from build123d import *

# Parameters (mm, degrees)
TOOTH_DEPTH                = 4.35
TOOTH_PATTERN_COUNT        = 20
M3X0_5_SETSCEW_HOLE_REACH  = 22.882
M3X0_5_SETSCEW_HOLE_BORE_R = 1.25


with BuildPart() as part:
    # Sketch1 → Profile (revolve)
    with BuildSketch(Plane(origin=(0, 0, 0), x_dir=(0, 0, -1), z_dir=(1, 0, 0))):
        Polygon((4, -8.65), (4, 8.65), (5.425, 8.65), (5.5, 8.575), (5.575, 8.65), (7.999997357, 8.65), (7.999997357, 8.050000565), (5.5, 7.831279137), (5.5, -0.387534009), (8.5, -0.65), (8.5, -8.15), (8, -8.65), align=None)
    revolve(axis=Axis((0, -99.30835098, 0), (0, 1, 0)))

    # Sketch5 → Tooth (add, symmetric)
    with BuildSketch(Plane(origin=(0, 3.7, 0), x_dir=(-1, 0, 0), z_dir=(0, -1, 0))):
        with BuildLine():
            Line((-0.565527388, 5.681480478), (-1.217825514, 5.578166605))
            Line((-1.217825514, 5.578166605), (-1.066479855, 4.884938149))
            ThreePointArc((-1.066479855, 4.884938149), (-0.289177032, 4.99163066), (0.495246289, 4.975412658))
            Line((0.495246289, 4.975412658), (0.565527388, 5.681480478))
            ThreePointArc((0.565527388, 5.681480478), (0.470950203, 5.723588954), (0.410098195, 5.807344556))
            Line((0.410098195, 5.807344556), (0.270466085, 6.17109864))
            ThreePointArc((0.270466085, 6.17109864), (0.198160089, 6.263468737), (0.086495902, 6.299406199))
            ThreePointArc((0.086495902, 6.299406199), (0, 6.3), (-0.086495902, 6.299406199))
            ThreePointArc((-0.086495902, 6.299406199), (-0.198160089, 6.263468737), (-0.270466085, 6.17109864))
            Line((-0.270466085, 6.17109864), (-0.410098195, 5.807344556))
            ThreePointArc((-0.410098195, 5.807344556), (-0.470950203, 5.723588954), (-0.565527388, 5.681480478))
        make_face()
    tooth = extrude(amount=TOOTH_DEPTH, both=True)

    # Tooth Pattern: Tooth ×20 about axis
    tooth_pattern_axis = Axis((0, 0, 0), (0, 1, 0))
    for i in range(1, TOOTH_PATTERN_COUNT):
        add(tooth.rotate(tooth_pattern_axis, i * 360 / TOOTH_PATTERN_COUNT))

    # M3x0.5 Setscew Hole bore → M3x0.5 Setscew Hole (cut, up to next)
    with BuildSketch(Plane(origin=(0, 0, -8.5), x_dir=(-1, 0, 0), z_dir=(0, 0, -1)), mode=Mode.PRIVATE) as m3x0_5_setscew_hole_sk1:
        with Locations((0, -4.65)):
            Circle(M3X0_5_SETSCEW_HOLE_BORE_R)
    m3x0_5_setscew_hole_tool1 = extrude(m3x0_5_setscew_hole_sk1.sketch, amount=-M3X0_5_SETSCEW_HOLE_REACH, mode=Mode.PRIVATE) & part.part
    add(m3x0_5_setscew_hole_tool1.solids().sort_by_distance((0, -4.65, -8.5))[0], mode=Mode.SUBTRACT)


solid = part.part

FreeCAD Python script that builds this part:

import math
import FreeCAD as App
import Part
import Sketcher
Q = App.Units.Quantity


def add_polygon(sketch, points):
    """Adds a closed chain of lines whose ends are joined by coincident constraints."""
    first, n = sketch.GeometryCount, len(points)
    for a, b in zip(points, points[1:] + points[:1]):
        sketch.addGeometry(Part.LineSegment(App.Vector(*a, 0), App.Vector(*b, 0)), False)
    for i in range(n):
        sketch.addConstraint(Sketcher.Constraint("Coincident", first + i, 2, first + (i + 1) % n, 1))

doc = App.newDocument("Part")
body = doc.addObject("PartDesign::Body", "Body")

# Sketch on YZ plane
sketch1 = body.newObject("Sketcher::SketchObject", "Sketch")
sketch1.AttachmentSupport = (doc.getObject("YZ_Plane"), [""])
sketch1.MapMode = "FlatFace"
add_polygon(sketch1, [(8.65, -4), (-8.65, -4), (-8.65, -8), (-8.15, -8.5), (-0.65, -8.5), (-0.39, -5.5), (7.83, -5.5), (8.05, -8), (8.65, -8), (8.65, -5.58), (8.57, -5.5), (8.65, -5.42)])  # lines 0-11
sketch1.addConstraint([
    Sketcher.Constraint("Horizontal", 0),
    Sketcher.Constraint("Vertical", 1),
    Sketcher.Constraint("Horizontal", 3),
    Sketcher.Constraint("Horizontal", 5),
    Sketcher.Constraint("Horizontal", 7),
    Sketcher.Constraint("Vertical", 8),
    Sketcher.Constraint("Vertical", 11),
    Sketcher.Constraint("Symmetric", 1, 2, 7, 2, -2),
    Sketcher.Constraint("Parallel", 2, 9),
    Sketcher.Constraint("Perpendicular", 9, 10),
    Sketcher.Constraint("Horizontal", 5, 2, 9, 2),
    Sketcher.Constraint("Vertical", 8, 2, 10, 2),
    Sketcher.Constraint("Equal", 9, 10),
    Sketcher.Constraint("DistanceY", 1, 2, 1, 1, 4.0),
    Sketcher.Constraint("Angle", 4, Q("85 deg")),
    Sketcher.Constraint("Angle", 6, Q("-85 deg")),
    Sketcher.Constraint("DistanceX", 0, 2, 0, 1, 17.3),
    Sketcher.Constraint("DistanceX", 3, 1, 3, 2, 7.5),
    Sketcher.Constraint("DistanceX", 7, 1, 7, 2, 0.599999),
    Sketcher.Constraint("DistanceY", 0, 2, -1, 1, 4.0),
    Sketcher.Constraint("DistanceX", 1, 2, 3, 2, 8.0),
    Sketcher.Constraint("DistanceY", 3, 2, 4, 2, 3.0),
    Sketcher.Constraint("DistanceY", 11, 1, 11, 2, 1.425),
])
revolution = body.newObject("PartDesign::Revolution", "Revolution")
revolution.Profile = sketch1
revolution.ReferenceAxis = (sketch1, ["H_Axis"])
revolution.Angle = 360

# Sketch on XZ plane
sketch2 = body.newObject("Sketcher::SketchObject", "Sketch001")
sketch2.AttachmentSupport = (doc.getObject("XZ_Plane"), [""])
sketch2.MapMode = "FlatFace"
sketch2.AttachmentOffset = App.Placement(App.Vector(0, 0, -3.7), App.Rotation())
sketch2.addGeometry([
    Part.LineSegment(App.Vector(0.57, -5.68, 0), App.Vector(1.22, -5.58, 0)),  # 0
    Part.LineSegment(App.Vector(1.22, -5.58, 0), App.Vector(1.07, -4.88, 0)),  # 1
    Part.ArcOfCircle(Part.Circle(App.Vector(0, 0, 0), App.Vector(0, 0, 1), 5), math.radians(-95.68), math.radians(-77.68)),  # 2
    Part.LineSegment(App.Vector(-0.5, -4.98, 0), App.Vector(-0.57, -5.68, 0)),  # 3
    Part.ArcOfCircle(Part.Circle(App.Vector(-0.6, -5.88, 0), App.Vector(0, 0, 1), 0.2), math.radians(21), math.radians(81)),  # 4
    Part.LineSegment(App.Vector(-0.41, -5.81, 0), App.Vector(-0.27, -6.17, 0)),  # 5
    Part.ArcOfCircle(Part.Circle(App.Vector(-0.08, -6.1, 0), App.Vector(0, 0, 1), 0.2), math.radians(-159), math.radians(-91)),  # 6
    Part.ArcOfCircle(Part.Circle(App.Vector(0, 0, 0), App.Vector(0, 0, 1), 6.3), math.radians(-90.79), math.radians(-89.21)),  # 7
    Part.ArcOfCircle(Part.Circle(App.Vector(0.08, -6.1, 0), App.Vector(0, 0, 1), 0.2), math.radians(-89), math.radians(-21)),  # 8
    Part.LineSegment(App.Vector(0.27, -6.17, 0), App.Vector(0.41, -5.81, 0)),  # 9
    Part.ArcOfCircle(Part.Circle(App.Vector(0.6, -5.88, 0), App.Vector(0, 0, 1), 0.2), math.radians(99), math.radians(159)),  # 10
], False)
sketch2.addConstraint([
    Sketcher.Constraint("Coincident", 0, 2, 1, 1),
    Sketcher.Constraint("Coincident", 1, 2, 2, 2),
    Sketcher.Constraint("Coincident", 2, 1, 3, 1),
    Sketcher.Constraint("Coincident", 3, 2, 4, 2),
    Sketcher.Constraint("Tangent", 4, 1, 5, 1),
    Sketcher.Constraint("Tangent", 5, 2, 6, 1),
    Sketcher.Constraint("Tangent", 6, 2, 7, 1),
    Sketcher.Constraint("Tangent", 7, 2, 8, 1),
    Sketcher.Constraint("Tangent", 8, 2, 9, 1),
    Sketcher.Constraint("Tangent", 9, 2, 10, 2),
    Sketcher.Constraint("Tangent", 10, 1, 0, 1),
    Sketcher.Constraint("Coincident", 2, 3, -1, 1),
    Sketcher.Constraint("Coincident", 7, 3, -1, 1),
    Sketcher.Constraint("Equal", 4, 6),
    Sketcher.Constraint("Equal", 6, 8),
    Sketcher.Constraint("Equal", 8, 10),
    Sketcher.Constraint("Symmetric", 4, 3, 10, 3, -2),
    Sketcher.Constraint("Horizontal", 6, 3, 8, 3),
    Sketcher.Constraint("Horizontal", 3, 2, 10, 1),
    Sketcher.Constraint("Equal", 1, 3),
    Sketcher.Constraint("Radius", 2, 5.0),
    Sketcher.Constraint("Radius", 4, 0.2),
    Sketcher.Constraint("Radius", 7, 6.300001),
    Sketcher.Constraint("Angle", 0, Q("9 deg")),
    Sketcher.Constraint("Angle", 5, Q("-69 deg")),
    Sketcher.Constraint("DistanceX", 4, 1, -1, 1, 0.410098),
    Sketcher.Constraint("DistanceX", 6, 3, 8, 3, 0.1675),
    Sketcher.Constraint("DistanceX", -1, 1, 1, 2, 1.06648),
    Sketcher.Constraint("DistanceX", 2, 1, 10, 3, 1.092061),
])
pad1 = body.newObject("PartDesign::Pad", "Pad")
pad1.Profile = sketch2
pad1.Length = 8.7
pad1.Midplane = True
doc.recompute()

polarpattern = body.newObject("PartDesign::PolarPattern", "PolarPattern")
polarpattern.Originals = [pad1]
polarpattern.Axis = (doc.getObject("Y_Axis"), [""])
polarpattern.Angle = 360
polarpattern.Occurrences = 20
body.Tip = polarpattern

# Sketch on XY plane
sketch3 = body.newObject("Sketcher::SketchObject", "Sketch002")
sketch3.AttachmentSupport = (doc.getObject("XY_Plane"), [""])
sketch3.MapMode = "FlatFace"
sketch3.AttachmentOffset = App.Placement(App.Vector(0, 0, -8.5), App.Rotation())
sketch3.addGeometry(Part.Circle(App.Vector(0, -4.7, 0), App.Vector(0, 0, 1), 1.2), False)
sketch3.addConstraint([
    Sketcher.Constraint("PointOnObject", 0, 3, -2),
    Sketcher.Constraint("Diameter", 0, 2.5),
    Sketcher.Constraint("DistanceY", 0, 3, -1, 1, 4.65),
])
pocket1 = body.newObject("PartDesign::Pocket", "Pocket")
pocket1.Profile = sketch3
pocket1.Length = 4.700329
pocket1.Reversed = True

doc.recompute()
